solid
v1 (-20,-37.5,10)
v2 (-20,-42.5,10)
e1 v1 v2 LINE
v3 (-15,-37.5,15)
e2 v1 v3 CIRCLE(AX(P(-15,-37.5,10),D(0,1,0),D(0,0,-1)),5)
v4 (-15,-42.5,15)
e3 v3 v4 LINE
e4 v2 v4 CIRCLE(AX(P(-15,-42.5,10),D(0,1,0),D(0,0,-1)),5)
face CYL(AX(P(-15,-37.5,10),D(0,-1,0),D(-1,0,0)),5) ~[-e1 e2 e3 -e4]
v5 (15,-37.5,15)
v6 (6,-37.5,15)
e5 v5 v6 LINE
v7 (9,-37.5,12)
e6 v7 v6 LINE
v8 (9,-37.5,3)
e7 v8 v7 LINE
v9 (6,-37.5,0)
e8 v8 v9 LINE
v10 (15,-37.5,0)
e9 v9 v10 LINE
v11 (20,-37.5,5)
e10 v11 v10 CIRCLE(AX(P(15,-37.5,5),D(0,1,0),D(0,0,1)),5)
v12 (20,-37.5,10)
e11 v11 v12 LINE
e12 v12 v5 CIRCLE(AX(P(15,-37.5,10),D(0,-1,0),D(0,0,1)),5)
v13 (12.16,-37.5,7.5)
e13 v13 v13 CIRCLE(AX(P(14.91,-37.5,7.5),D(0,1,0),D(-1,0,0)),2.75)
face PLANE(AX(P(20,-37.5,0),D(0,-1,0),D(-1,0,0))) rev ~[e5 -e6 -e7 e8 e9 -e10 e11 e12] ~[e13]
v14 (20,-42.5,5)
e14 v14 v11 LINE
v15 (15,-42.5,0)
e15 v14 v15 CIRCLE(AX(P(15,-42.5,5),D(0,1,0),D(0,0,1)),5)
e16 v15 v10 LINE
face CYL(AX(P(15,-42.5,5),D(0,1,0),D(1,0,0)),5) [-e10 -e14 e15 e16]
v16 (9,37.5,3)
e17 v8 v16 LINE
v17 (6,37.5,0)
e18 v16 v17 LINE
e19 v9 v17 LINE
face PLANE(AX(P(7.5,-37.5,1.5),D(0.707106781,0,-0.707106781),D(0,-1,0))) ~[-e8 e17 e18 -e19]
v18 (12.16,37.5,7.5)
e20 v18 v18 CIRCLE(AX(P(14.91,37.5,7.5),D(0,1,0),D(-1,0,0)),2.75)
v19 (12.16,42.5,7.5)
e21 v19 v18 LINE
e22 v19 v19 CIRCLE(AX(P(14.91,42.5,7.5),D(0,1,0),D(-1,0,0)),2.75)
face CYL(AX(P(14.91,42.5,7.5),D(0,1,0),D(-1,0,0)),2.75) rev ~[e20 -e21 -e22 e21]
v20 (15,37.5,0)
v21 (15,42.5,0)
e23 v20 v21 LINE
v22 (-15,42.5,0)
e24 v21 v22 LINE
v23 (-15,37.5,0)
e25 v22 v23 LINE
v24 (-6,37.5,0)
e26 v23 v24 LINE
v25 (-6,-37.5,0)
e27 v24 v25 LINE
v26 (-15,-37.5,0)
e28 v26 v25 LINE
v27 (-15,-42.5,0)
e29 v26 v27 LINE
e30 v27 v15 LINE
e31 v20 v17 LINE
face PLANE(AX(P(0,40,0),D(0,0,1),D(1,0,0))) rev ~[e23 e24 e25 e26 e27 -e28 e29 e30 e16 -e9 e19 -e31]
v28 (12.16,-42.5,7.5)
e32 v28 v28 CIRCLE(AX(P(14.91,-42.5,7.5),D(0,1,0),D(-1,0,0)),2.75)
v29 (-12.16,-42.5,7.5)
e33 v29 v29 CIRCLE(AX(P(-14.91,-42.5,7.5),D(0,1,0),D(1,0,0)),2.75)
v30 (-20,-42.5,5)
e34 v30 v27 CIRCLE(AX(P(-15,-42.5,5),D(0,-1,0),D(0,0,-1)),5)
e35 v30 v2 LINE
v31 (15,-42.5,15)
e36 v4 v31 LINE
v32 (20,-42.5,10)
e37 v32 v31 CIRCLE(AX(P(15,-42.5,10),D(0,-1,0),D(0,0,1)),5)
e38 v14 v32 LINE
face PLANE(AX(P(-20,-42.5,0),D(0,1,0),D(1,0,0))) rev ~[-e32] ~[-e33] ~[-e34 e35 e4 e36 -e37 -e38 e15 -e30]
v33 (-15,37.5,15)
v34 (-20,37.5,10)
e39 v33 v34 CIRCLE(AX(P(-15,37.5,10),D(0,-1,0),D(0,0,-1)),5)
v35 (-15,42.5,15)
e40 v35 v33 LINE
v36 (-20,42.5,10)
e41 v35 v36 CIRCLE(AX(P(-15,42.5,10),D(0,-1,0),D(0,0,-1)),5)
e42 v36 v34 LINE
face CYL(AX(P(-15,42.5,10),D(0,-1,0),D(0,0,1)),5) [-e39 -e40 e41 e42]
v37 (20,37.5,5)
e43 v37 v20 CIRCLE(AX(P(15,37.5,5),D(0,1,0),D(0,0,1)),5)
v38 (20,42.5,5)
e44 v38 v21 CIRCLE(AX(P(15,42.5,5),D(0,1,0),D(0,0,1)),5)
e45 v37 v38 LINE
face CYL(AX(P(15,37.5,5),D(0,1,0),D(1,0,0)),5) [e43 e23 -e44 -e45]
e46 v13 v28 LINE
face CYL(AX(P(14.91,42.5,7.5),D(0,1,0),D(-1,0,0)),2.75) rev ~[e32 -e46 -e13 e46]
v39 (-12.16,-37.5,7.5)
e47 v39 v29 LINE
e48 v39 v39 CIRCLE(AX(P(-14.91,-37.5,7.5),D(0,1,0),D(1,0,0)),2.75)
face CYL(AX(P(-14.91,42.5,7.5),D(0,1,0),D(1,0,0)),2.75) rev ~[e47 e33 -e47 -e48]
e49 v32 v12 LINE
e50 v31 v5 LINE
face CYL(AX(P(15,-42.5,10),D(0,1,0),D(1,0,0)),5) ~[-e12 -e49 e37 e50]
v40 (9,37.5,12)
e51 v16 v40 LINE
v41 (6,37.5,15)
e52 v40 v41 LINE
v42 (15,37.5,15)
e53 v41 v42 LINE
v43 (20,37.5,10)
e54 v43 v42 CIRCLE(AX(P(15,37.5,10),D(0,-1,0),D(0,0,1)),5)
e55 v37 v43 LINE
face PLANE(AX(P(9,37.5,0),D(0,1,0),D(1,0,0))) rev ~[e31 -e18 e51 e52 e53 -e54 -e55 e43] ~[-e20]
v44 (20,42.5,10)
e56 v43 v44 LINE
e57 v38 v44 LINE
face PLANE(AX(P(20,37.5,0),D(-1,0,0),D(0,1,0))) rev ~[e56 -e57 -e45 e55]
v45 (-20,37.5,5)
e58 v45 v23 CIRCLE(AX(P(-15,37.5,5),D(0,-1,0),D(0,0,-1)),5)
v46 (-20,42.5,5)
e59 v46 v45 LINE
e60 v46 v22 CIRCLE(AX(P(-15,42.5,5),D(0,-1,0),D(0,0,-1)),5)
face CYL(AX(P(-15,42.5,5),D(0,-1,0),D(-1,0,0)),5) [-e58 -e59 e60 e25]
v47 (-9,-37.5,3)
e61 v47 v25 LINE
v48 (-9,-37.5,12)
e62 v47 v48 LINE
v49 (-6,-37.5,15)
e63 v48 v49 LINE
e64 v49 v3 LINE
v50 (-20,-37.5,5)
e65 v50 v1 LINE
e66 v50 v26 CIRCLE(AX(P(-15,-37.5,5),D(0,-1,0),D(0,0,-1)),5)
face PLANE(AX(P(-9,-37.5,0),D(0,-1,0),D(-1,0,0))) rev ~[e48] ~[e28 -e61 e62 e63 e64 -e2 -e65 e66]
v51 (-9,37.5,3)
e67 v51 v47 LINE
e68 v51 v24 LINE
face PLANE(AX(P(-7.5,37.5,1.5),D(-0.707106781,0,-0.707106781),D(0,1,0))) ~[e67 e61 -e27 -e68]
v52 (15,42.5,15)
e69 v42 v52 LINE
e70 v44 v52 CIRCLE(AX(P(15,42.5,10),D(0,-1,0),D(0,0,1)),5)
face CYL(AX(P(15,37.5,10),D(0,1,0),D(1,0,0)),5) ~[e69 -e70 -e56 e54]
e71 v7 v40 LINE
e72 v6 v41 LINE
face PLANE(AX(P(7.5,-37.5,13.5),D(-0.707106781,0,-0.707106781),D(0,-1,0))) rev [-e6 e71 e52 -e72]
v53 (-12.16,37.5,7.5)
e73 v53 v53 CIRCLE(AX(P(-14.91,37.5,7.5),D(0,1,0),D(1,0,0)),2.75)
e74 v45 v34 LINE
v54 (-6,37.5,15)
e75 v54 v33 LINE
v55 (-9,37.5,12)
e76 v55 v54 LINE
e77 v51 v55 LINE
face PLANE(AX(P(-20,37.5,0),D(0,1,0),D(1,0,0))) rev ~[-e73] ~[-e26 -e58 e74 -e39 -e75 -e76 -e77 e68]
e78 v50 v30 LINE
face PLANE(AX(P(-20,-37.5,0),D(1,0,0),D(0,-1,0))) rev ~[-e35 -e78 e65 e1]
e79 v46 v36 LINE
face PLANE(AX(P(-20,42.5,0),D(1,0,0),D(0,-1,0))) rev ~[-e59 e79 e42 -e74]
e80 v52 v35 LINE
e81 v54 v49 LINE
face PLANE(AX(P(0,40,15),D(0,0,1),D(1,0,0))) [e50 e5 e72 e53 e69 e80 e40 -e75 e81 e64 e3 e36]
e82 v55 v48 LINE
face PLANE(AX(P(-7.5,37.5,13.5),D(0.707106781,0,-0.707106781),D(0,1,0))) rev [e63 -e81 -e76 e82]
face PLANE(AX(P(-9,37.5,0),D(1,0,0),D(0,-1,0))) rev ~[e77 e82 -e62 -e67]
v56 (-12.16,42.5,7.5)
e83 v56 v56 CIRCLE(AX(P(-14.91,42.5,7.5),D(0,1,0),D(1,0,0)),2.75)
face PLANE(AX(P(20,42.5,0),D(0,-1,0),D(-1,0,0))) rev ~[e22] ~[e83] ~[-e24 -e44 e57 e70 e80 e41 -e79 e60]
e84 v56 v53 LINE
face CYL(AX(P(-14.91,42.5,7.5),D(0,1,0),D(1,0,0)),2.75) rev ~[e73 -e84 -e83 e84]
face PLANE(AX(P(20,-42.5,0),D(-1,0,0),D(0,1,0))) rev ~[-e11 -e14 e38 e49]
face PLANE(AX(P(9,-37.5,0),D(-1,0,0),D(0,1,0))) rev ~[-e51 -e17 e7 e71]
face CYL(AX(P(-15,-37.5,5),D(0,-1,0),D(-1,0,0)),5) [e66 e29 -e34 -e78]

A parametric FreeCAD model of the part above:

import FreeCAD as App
import Part
import Sketcher

V = App.Vector
Q = App.Units.Quantity


def edges_at(feature, points):
    """Names of the edges that pass closest to the given points."""
    edges = feature.Shape.Edges
    near = lambda p: min(range(len(edges)), key=lambda i: edges[i].distToShape(Part.Vertex(*p))[0])
    return sorted({f"Edge{near(p) + 1}" for p in points})

doc = App.newDocument("Part")
body = doc.addObject("PartDesign::Body", "Body")

# Sketch on XY plane
sketch1 = doc.addObject("Sketcher::SketchObject", "Sketch")
body.addObject(sketch1)
sketch1.AttachmentSupport = (doc.XY_Plane, [""])
sketch1.MapMode = "FlatFace"
sketch1.addGeometry(Part.LineSegment(V(20, 37.5, 0), V(20, 42.5, 0)), False)
sketch1.addGeometry(Part.LineSegment(V(20, 42.5, 0), V(-20, 42.5, 0)), False)
sketch1.addGeometry(Part.LineSegment(V(-20, 42.5, 0), V(-20, 37.5, 0)), False)
sketch1.addGeometry(Part.LineSegment(V(-20, 37.5, 0), V(-9, 37.5, 0)), False)
sketch1.addGeometry(Part.LineSegment(V(-9, 37.5, 0), V(-9, -37.5, 0)), False)
sketch1.addGeometry(Part.LineSegment(V(-9, -37.5, 0), V(-20, -37.5, 0)), False)
sketch1.addGeometry(Part.LineSegment(V(-20, -37.5, 0), V(-20, -42.5, 0)), False)
sketch1.addGeometry(Part.LineSegment(V(-20, -42.5, 0), V(20, -42.5, 0)), False)
sketch1.addGeometry(Part.LineSegment(V(20, -42.5, 0), V(20, -37.5, 0)), False)
sketch1.addGeometry(Part.LineSegment(V(20, -37.5, 0), V(9, -37.5, 0)), False)
sketch1.addGeometry(Part.LineSegment(V(9, -37.5, 0), V(9, 37.5, 0)), False)
sketch1.addGeometry(Part.LineSegment(V(9, 37.5, 0), V(20, 37.5, 0)), False)
sketch1.addConstraint(Sketcher.Constraint("Coincident", 0, 2, 1, 1))
sketch1.addConstraint(Sketcher.Constraint("Coincident", 1, 2, 2, 1))
sketch1.addConstraint(Sketcher.Constraint("Coincident", 2, 2, 3, 1))
sketch1.addConstraint(Sketcher.Constraint("Coincident", 3, 2, 4, 1))
sketch1.addConstraint(Sketcher.Constraint("Coincident", 4, 2, 5, 1))
sketch1.addConstraint(Sketcher.Constraint("Coincident", 5, 2, 6, 1))
sketch1.addConstraint(Sketcher.Constraint("Coincident", 6, 2, 7, 1))
sketch1.addConstraint(Sketcher.Constraint("Coincident", 7, 2, 8, 1))
sketch1.addConstraint(Sketcher.Constraint("Coincident", 8, 2, 9, 1))
sketch1.addConstraint(Sketcher.Constraint("Coincident", 9, 2, 10, 1))
sketch1.addConstraint(Sketcher.Constraint("Coincident", 10, 2, 11, 1))
sketch1.addConstraint(Sketcher.Constraint("Coincident", 11, 2, 0, 1))
sketch1.addConstraint(Sketcher.Constraint("Vertical", 0))
sketch1.addConstraint(Sketcher.Constraint("Horizontal", 1))
sketch1.addConstraint(Sketcher.Constraint("Vertical", 2))
sketch1.addConstraint(Sketcher.Constraint("Horizontal", 3))
sketch1.addConstraint(Sketcher.Constraint("Vertical", 4))
sketch1.addConstraint(Sketcher.Constraint("Horizontal", 5))
sketch1.addConstraint(Sketcher.Constraint("Vertical", 6))
sketch1.addConstraint(Sketcher.Constraint("Horizontal", 7))
sketch1.addConstraint(Sketcher.Constraint("Vertical", 8))
sketch1.addConstraint(Sketcher.Constraint("Horizontal", 9))
sketch1.addConstraint(Sketcher.Constraint("Vertical", 10))
sketch1.addConstraint(Sketcher.Constraint("Horizontal", 11))
sketch1.addConstraint(Sketcher.Constraint("Symmetric", 0, 2, 6, 2, -1, 1))
sketch1.addConstraint(Sketcher.Constraint("Symmetric", 2, 2, 8, 2, -1, 1))
sketch1.addConstraint(Sketcher.Constraint("Symmetric", 4, 2, 10, 2, -1, 1))
sketch1.addConstraint(Sketcher.Constraint("Symmetric", 5, 2, 8, 2, -2))
sketch1.addConstraint(Sketcher.Constraint("DistanceX", 1, 2, 1, 1, Q("40 mm")))
sketch1.addConstraint(Sketcher.Constraint("DistanceX", 3, 1, 3, 2, Q("11 mm")))
sketch1.addConstraint(Sketcher.Constraint("DistanceY", 0, 1, 0, 2, Q("5 mm")))
sketch1.addConstraint(Sketcher.Constraint("DistanceY", 4, 2, 4, 1, Q("75 mm")))
pad1 = doc.addObject("PartDesign::Pad", "Pad")
body.addObject(pad1)
pad1.Profile = sketch1
pad1.Length = 15
doc.recompute()

chamfer = doc.addObject("PartDesign::Chamfer", "Chamfer")
body.addObject(chamfer)
chamfer.Base = (pad1, edges_at(pad1, [
    (9, 0, 0),
    (-9, 0, 0),
    (-9, 0, 15),
    (9, 0, 15),
]))
chamfer.Size = 3
doc.recompute()

fillet = doc.addObject("PartDesign::Fillet", "Fillet")
body.addObject(fillet)
fillet.Base = (chamfer, edges_at(chamfer, [
    (20, -40, 15),
    (-20, -40, 0),
    (-20, -40, 15),
    (20, -40, 0),
    (-20, 40, 15),
    (-20, 40, 0),
    (20, 40, 0),
    (20, 40, 15),
]))
fillet.Radius = 5

# Sketch on XZ plane
sketch2 = doc.addObject("Sketcher::SketchObject", "Sketch001")
body.addObject(sketch2)
sketch2.AttachmentSupport = (doc.XZ_Plane, [""])
sketch2.MapMode = "FlatFace"
sketch2.AttachmentOffset = App.Placement(V(0, 0, -42.5), App.Rotation())
sketch2.addGeometry(Part.Circle(V(-14.91, 7.5, 0), V(0, 0, 1), 2.75), False)
sketch2.addGeometry(Part.Circle(V(14.91, 7.5, 0), V(0, 0, 1), 2.75), False)
sketch2.addConstraint(Sketcher.Constraint("Equal", 0, 1))
sketch2.addConstraint(Sketcher.Constraint("Symmetric", 0, 3, 1, 3, -2))
sketch2.addConstraint(Sketcher.Constraint("Diameter", 0, Q("5.5 mm")))
sketch2.addConstraint(Sketcher.Constraint("DistanceY", -1, 1, 0, 3, Q("7.5 mm")))
sketch2.addConstraint(Sketcher.Constraint("DistanceX", 0, 3, -1, 1, Q("14.91 mm")))
pocket1 = doc.addObject("PartDesign::Pocket", "Pocket")
body.addObject(pocket1)
pocket1.Profile = sketch2
pocket1.Length = 150
pocket1.Reversed = True

doc.recompute()
